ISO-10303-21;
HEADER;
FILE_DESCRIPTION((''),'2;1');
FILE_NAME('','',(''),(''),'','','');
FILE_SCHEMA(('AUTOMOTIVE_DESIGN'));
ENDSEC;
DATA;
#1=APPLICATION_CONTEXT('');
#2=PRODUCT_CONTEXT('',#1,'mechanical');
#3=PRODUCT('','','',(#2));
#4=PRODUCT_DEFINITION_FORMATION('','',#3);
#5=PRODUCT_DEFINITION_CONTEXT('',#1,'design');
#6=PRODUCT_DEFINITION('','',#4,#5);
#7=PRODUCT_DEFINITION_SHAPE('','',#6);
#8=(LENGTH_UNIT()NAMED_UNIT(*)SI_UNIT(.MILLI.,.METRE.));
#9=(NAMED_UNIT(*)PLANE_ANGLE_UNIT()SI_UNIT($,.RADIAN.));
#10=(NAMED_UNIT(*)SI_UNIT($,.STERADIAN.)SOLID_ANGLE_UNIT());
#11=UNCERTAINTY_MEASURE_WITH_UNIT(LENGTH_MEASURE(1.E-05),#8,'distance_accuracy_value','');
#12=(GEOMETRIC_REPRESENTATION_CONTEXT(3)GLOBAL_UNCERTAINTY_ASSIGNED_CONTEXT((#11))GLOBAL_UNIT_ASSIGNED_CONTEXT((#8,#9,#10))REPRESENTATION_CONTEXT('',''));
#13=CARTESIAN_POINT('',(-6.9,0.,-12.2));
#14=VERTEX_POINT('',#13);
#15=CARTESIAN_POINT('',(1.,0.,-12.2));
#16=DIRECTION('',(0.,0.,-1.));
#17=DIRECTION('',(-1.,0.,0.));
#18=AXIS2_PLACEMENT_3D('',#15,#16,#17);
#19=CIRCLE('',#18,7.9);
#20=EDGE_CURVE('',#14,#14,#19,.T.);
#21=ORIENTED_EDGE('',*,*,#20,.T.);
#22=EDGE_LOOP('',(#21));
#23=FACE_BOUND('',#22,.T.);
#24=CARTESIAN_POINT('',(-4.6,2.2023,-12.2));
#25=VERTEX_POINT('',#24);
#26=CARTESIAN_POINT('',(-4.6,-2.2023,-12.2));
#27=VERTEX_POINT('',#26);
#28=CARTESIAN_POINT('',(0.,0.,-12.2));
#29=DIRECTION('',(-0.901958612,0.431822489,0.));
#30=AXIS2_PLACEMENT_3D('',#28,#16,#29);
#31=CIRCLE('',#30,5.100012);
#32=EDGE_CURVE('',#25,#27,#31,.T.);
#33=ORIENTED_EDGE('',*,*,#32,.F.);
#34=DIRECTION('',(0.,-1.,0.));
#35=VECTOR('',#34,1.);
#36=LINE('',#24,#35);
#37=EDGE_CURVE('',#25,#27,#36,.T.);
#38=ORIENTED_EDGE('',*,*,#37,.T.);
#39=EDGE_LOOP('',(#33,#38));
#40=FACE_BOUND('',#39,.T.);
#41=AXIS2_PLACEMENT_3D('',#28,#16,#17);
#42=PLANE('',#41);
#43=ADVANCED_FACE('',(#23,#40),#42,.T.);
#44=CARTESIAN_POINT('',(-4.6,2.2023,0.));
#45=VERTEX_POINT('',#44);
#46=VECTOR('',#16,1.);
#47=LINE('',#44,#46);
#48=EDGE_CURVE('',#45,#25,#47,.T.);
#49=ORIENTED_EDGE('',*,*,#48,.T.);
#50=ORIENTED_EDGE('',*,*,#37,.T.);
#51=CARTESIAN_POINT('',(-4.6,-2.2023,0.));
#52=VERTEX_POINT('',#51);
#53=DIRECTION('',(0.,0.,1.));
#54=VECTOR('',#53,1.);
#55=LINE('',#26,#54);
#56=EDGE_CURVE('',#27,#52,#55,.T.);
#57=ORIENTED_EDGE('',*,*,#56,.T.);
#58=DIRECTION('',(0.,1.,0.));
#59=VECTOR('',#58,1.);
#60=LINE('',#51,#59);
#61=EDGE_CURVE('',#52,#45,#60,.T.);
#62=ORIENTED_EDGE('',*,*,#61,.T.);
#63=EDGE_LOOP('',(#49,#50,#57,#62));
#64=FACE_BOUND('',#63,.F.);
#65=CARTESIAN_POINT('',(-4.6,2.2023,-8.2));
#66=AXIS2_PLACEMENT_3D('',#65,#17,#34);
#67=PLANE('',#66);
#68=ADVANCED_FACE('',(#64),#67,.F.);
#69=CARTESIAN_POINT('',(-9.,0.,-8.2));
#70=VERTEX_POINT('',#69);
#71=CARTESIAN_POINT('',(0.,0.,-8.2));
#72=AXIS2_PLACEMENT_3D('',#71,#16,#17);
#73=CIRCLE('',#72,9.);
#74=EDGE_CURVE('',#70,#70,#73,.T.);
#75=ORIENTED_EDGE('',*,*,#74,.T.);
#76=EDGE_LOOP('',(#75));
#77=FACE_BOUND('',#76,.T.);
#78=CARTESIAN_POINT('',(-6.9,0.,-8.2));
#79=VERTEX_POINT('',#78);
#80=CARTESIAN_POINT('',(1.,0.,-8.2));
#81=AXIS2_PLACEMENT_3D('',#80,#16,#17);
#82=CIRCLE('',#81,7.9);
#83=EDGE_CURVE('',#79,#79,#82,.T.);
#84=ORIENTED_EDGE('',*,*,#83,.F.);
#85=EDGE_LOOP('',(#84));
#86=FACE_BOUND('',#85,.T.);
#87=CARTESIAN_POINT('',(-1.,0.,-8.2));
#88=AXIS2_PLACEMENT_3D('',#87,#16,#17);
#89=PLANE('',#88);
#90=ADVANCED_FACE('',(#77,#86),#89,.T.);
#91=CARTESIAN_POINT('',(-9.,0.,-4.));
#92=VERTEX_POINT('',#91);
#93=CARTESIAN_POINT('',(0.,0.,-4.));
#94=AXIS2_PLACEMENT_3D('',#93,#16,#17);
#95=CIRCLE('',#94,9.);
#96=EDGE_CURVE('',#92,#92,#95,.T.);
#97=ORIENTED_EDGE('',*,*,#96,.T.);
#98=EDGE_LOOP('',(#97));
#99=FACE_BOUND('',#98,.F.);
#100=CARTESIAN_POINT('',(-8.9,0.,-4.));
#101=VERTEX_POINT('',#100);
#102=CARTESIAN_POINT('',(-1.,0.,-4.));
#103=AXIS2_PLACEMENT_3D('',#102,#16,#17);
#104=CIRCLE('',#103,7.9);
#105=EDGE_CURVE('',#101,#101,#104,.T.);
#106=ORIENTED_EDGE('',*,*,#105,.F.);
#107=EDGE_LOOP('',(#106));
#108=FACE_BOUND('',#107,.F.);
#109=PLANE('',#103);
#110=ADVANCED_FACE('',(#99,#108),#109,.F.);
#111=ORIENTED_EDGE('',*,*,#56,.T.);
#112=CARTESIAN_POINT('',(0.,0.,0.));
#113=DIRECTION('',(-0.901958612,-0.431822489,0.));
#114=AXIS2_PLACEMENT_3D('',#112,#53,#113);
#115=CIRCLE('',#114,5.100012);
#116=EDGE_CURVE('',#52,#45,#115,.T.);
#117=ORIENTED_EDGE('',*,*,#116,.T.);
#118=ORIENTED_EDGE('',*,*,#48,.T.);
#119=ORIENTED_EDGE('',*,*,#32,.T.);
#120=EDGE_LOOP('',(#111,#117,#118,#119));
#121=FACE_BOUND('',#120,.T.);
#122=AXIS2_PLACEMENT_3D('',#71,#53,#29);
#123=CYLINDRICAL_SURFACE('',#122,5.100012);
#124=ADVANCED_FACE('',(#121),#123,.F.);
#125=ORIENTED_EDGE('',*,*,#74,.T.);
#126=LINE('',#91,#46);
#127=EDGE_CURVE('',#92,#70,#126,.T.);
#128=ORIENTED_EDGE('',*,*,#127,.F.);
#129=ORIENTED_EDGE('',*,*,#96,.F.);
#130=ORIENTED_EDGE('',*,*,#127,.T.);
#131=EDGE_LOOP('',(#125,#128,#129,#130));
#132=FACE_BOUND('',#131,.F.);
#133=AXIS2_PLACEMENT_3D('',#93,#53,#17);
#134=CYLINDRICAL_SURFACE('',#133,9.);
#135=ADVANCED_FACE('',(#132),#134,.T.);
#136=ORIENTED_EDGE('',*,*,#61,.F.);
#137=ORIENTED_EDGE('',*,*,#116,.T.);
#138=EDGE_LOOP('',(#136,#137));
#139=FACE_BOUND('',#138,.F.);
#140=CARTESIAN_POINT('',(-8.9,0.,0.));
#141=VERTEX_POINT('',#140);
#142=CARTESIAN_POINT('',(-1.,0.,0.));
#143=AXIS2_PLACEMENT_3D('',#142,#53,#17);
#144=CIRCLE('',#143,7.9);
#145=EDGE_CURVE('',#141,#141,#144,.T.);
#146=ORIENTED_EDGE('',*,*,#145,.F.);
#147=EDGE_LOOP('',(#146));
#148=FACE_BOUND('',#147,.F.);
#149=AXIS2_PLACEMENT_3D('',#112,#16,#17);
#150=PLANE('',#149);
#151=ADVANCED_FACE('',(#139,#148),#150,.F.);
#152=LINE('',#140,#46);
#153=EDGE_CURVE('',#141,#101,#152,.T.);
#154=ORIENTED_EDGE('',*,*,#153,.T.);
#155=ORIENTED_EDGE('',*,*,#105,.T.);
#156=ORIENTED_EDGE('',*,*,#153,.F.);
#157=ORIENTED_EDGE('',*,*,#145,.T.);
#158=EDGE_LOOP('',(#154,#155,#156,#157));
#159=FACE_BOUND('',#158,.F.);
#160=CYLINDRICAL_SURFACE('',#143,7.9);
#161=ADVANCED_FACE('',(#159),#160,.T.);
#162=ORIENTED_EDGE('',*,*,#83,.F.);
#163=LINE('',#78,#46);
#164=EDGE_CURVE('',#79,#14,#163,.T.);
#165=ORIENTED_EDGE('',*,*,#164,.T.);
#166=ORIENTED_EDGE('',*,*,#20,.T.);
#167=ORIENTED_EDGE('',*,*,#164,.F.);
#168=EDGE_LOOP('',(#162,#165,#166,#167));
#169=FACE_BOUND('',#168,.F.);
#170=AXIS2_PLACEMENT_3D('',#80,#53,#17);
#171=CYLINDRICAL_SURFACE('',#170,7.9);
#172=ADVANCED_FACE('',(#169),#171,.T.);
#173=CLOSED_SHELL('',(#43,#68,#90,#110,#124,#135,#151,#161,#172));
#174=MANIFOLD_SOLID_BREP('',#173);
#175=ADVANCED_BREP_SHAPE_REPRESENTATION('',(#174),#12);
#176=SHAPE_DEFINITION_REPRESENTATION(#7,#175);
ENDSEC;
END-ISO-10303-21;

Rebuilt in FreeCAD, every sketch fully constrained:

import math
import FreeCAD as App
import Part
import Sketcher
Q = App.Units.Quantity

doc = App.newDocument("Part")
params = doc.addObject("Spreadsheet::Sheet", "Params")
for row, (alias, value) in enumerate([
    ("sketch1_diameter", "16 mm"),
    ("sketch1_radius", "5.1 mm"),
    ("pad1_length", "4 mm"),
    ("sketch2_diameter", "15.8 mm"),
    ("sketch2_radius", "5.1 mm"),
    ("pad2_length", "4 mm"),
    ("sketch3_diameter", "16 mm"),
    ("pocket1_length", "4 mm"),
    ("sketch4_diameter", "18 mm"),
    ("sketch4_radius", "5.1 mm"),
    ("pad3_length", "4.2 mm"),
    ("sketch5_diameter", "15.8 mm"),
    ("sketch5_radius", "5.1 mm"),
    ("pad4_length", "4 mm"),
], start=1):
    params.set(f"A{row}", alias)
    params.set(f"B{row}", "=" + value)
    params.setAlias(f"B{row}", alias)

body = doc.addObject("PartDesign::Body", "Body")

# Sketch on XY plane
sketch1 = body.newObject("Sketcher::SketchObject", "Sketch")
sketch1.AttachmentSupport = (doc.getObject("XY_Plane"), [""])
sketch1.MapMode = "FlatFace"
sketch1.addGeometry([
    Part.Circle(App.Vector(0, 0, 0), App.Vector(0, 0, 1), 8),
    Part.ArcOfCircle(Part.Circle(App.Vector(0, 0, 0), App.Vector(0, 0, 1), 5.1), math.radians(-154), math.radians(154)),
    Part.LineSegment(App.Vector(-4.6, -2.2, 0), App.Vector(-4.6, 2.2, 0)),
], False)
sketch1.addConstraint([
    Sketcher.Constraint("Coincident", 1, 1, 2, 1),
    Sketcher.Constraint("Coincident", 2, 2, 1, 2),
    Sketcher.Constraint("Vertical", 2),
    Sketcher.Constraint("Coincident", 0, 3, -1, 1),
    Sketcher.Constraint("Coincident", 1, 3, -1, 1),
    Sketcher.Constraint("Diameter", 0, Q("16 mm")),
    Sketcher.Constraint("Radius", 1, Q("5.1 mm")),
    Sketcher.Constraint("DistanceX", 1, 1, -1, 1, Q("4.6 mm")),
])
sketch1.setExpression("Constraints[5]", "Params.sketch1_diameter")
sketch1.setExpression("Constraints[6]", "Params.sketch1_radius")
pad1 = body.newObject("PartDesign::Pad", "Pad")
pad1.Profile = sketch1
pad1.setExpression("Length", "Params.pad1_length")

# Sketch on XY plane
sketch2 = body.newObject("Sketcher::SketchObject", "Sketch001")
sketch2.AttachmentSupport = (doc.getObject("XY_Plane"), [""])
sketch2.MapMode = "FlatFace"
sketch2.addGeometry([
    Part.Circle(App.Vector(-1, 0, 0), App.Vector(0, 0, 1), 7.9),
    Part.ArcOfCircle(Part.Circle(App.Vector(0, 0, 0), App.Vector(0, 0, 1), 5.1), math.radians(-154), math.radians(154)),
    Part.LineSegment(App.Vector(-4.6, 2.2, 0), App.Vector(-4.6, -2.2, 0)),
], False)
sketch2.addConstraint([
    Sketcher.Constraint("Coincident", 1, 1, 2, 2),
    Sketcher.Constraint("Coincident", 2, 1, 1, 2),
    Sketcher.Constraint("Vertical", 2),
    Sketcher.Constraint("Coincident", 1, 3, -1, 1),
    Sketcher.Constraint("PointOnObject", 0, 3, -1),
    Sketcher.Constraint("Diameter", 0, Q("15.8 mm")),
    Sketcher.Constraint("DistanceX", 0, 3, -1, 1, Q("1 mm")),
    Sketcher.Constraint("Radius", 1, Q("5.1 mm")),
    Sketcher.Constraint("DistanceX", 1, 1, -1, 1, Q("4.6 mm")),
])
sketch2.setExpression("Constraints[5]", "Params.sketch2_diameter")
sketch2.setExpression("Constraints[7]", "Params.sketch2_radius")
pad2 = body.newObject("PartDesign::Pad", "Pad001")
pad2.Profile = sketch2
pad2.setExpression("Length", "Params.pad2_length")
pad2.Reversed = True

# Sketch on XY plane
sketch3 = body.newObject("Sketcher::SketchObject", "Sketch002")
sketch3.AttachmentSupport = (doc.getObject("XY_Plane"), [""])
sketch3.MapMode = "FlatFace"
sketch3.AttachmentOffset = App.Placement(App.Vector(0, 0, 4), App.Rotation())
sketch3.addGeometry(Part.Circle(App.Vector(0, 0, 0), App.Vector(0, 0, 1), 8), False)
sketch3.addConstraint([
    Sketcher.Constraint("Coincident", 0, 3, -1, 1),
    Sketcher.Constraint("Diameter", 0, Q("16 mm")),
])
sketch3.setExpression("Constraints[1]", "Params.sketch3_diameter")
pocket1 = body.newObject("PartDesign::Pocket", "Pocket")
pocket1.Profile = sketch3
pocket1.setExpression("Length", "Params.pocket1_length")

# Sketch on XY plane
sketch4 = body.newObject("Sketcher::SketchObject", "Sketch003")
sketch4.AttachmentSupport = (doc.getObject("XY_Plane"), [""])
sketch4.MapMode = "FlatFace"
sketch4.AttachmentOffset = App.Placement(App.Vector(0, 0, -4), App.Rotation())
sketch4.addGeometry([
    Part.Circle(App.Vector(0, 0, 0), App.Vector(0, 0, 1), 9),
    Part.ArcOfCircle(Part.Circle(App.Vector(0, 0, 0), App.Vector(0, 0, 1), 5.1), math.radians(-154), math.radians(154)),
    Part.LineSegment(App.Vector(-4.6, 2.2, 0), App.Vector(-4.6, -2.2, 0)),
], False)
sketch4.addConstraint([
    Sketcher.Constraint("Coincident", 1, 1, 2, 2),
    Sketcher.Constraint("Coincident", 2, 1, 1, 2),
    Sketcher.Constraint("Vertical", 2),
    Sketcher.Constraint("Coincident", 0, 3, -1, 1),
    Sketcher.Constraint("Coincident", 1, 3, -1, 1),
    Sketcher.Constraint("Diameter", 0, Q("18 mm")),
    Sketcher.Constraint("Radius", 1, Q("5.1 mm")),
    Sketcher.Constraint("DistanceX", 1, 1, -1, 1, Q("4.6 mm")),
])
sketch4.setExpression("Constraints[5]", "Params.sketch4_diameter")
sketch4.setExpression("Constraints[6]", "Params.sketch4_radius")
pad3 = body.newObject("PartDesign::Pad", "Pad002")
pad3.Profile = sketch4
pad3.setExpression("Length", "Params.pad3_length")
pad3.Reversed = True

# Sketch on XY plane
sketch5 = body.newObject("Sketcher::SketchObject", "Sketch004")
sketch5.AttachmentSupport = (doc.getObject("XY_Plane"), [""])
sketch5.MapMode = "FlatFace"
sketch5.AttachmentOffset = App.Placement(App.Vector(0, 0, -8.2), App.Rotation())
sketch5.addGeometry([
    Part.Circle(App.Vector(1, 0, 0), App.Vector(0, 0, 1), 7.9),
    Part.ArcOfCircle(Part.Circle(App.Vector(0, 0, 0), App.Vector(0, 0, 1), 5.1), math.radians(-154), math.radians(154)),
    Part.LineSegment(App.Vector(-4.6, 2.2, 0), App.Vector(-4.6, -2.2, 0)),
], False)
sketch5.addConstraint([
    Sketcher.Constraint("Coincident", 1, 1, 2, 2),
    Sketcher.Constraint("Coincident", 2, 1, 1, 2),
    Sketcher.Constraint("Vertical", 2),
    Sketcher.Constraint("Coincident", 1, 3, -1, 1),
    Sketcher.Constraint("PointOnObject", 0, 3, -1),
    Sketcher.Constraint("Diameter", 0, Q("15.8 mm")),
    Sketcher.Constraint("DistanceX", -1, 1, 0, 3, Q("1 mm")),
    Sketcher.Constraint("Radius", 1, Q("5.1 mm")),
    Sketcher.Constraint("DistanceX", 1, 1, -1, 1, Q("4.6 mm")),
])
sketch5.setExpression("Constraints[5]", "Params.sketch5_diameter")
sketch5.setExpression("Constraints[7]", "Params.sketch5_radius")
pad4 = body.newObject("PartDesign::Pad", "Pad003")
pad4.Profile = sketch5
pad4.setExpression("Length", "Params.pad4_length")
pad4.Reversed = True

doc.recompute()
